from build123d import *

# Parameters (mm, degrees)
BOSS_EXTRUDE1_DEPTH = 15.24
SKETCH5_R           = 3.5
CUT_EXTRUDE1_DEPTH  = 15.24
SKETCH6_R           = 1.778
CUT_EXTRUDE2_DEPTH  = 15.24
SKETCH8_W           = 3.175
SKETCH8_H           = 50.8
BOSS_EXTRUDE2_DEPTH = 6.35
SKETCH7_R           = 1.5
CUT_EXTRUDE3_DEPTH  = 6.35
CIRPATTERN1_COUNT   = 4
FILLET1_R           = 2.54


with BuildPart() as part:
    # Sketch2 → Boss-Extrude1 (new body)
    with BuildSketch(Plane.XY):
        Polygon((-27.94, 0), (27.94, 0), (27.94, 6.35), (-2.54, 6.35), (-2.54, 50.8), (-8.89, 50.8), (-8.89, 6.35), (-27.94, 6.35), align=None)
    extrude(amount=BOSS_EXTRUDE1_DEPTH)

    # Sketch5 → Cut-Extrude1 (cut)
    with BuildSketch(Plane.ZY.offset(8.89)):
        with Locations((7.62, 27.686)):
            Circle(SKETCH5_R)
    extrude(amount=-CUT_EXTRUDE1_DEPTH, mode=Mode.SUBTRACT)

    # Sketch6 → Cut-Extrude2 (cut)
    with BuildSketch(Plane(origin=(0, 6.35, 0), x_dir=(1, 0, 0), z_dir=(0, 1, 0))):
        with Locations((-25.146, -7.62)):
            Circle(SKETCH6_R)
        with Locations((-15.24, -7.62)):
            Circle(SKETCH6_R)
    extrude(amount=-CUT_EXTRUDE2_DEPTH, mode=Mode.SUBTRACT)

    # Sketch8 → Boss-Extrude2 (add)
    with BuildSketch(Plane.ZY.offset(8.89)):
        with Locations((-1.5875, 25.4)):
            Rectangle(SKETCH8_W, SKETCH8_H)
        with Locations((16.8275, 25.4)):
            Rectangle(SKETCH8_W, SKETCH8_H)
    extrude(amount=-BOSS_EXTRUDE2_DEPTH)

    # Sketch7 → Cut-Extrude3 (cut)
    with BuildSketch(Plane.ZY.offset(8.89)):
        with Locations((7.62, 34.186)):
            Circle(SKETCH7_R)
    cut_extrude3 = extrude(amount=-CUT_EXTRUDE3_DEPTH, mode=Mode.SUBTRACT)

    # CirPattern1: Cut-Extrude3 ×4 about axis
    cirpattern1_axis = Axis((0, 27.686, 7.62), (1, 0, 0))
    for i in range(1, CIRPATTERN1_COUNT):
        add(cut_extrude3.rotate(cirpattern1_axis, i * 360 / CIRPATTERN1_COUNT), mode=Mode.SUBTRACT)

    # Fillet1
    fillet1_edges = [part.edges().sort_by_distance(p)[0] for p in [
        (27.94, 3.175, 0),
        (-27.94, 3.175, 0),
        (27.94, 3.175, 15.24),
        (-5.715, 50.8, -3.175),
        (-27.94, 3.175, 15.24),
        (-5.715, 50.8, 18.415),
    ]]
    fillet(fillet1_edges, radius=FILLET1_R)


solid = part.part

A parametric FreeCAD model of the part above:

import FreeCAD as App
import Part
import Sketcher
Q = App.Units.Quantity


def edges_at(feature, points):
    """Names of the edges that pass closest to the given points."""
    edges = feature.Shape.Edges
    near = lambda p: min(range(len(edges)), key=lambda i: edges[i].distToShape(Part.Vertex(*p))[0])
    return sorted({f"Edge{near(p) + 1}" for p in points})

doc = App.newDocument("Part")
params = doc.addObject("Spreadsheet::Sheet", "Params")
for row, (alias, value) in enumerate([
    ("sketch1_width", "2.2 in"),
    ("sketch1_width2", "1.2 in"),
    ("sketch1_width3", "0.25 in"),
    ("pad1_length", "0.6 in"),
    ("pocket1_length", "0.6 in"),
    ("sketch3_diameter", "0.14 in"),
    ("pocket2_length", "0.6 in"),
    ("sketch4_width", "2 in"),
    ("sketch4_height", "0.125 in"),
    ("pad2_length", "0.25 in"),
    ("pocket3_length", "0.25 in"),
    ("fillet_radius", "0.1 in"),
], start=1):
    params.set(f"A{row}", alias)
    params.set(f"B{row}", "=" + value)
    params.setAlias(f"B{row}", alias)

body = doc.addObject("PartDesign::Body", "Body")

# Sketch on XY plane
sketch1 = doc.addObject("Sketcher::SketchObject", "Sketch")
body.addObject(sketch1)
sketch1.AttachmentSupport = (doc.XY_Plane, [""])
sketch1.MapMode = "FlatFace"
sketch1.addGeometry([
    Part.LineSegment(App.Vector(-28, 0, 0), App.Vector(28, 0, 0)),  # 0
    Part.LineSegment(App.Vector(28, 0, 0), App.Vector(28, 6, 0)),  # 1
    Part.LineSegment(App.Vector(28, 6, 0), App.Vector(-3, 6, 0)),  # 2
    Part.LineSegment(App.Vector(-3, 6, 0), App.Vector(-3, 51, 0)),  # 3
    Part.LineSegment(App.Vector(-3, 51, 0), App.Vector(-9, 51, 0)),  # 4
    Part.LineSegment(App.Vector(-9, 51, 0), App.Vector(-9, 6, 0)),  # 5
    Part.LineSegment(App.Vector(-9, 6, 0), App.Vector(-28, 6, 0)),  # 6
    Part.LineSegment(App.Vector(-28, 6, 0), App.Vector(-28, 0, 0)),  # 7
], False)
sketch1.addConstraint([
    Sketcher.Constraint("Coincident", 0, 2, 1, 1),
    Sketcher.Constraint("Coincident", 1, 2, 2, 1),
    Sketcher.Constraint("Coincident", 2, 2, 3, 1),
    Sketcher.Constraint("Coincident", 3, 2, 4, 1),
    Sketcher.Constraint("Coincident", 4, 2, 5, 1),
    Sketcher.Constraint("Coincident", 5, 2, 6, 1),
    Sketcher.Constraint("Coincident", 6, 2, 7, 1),
    Sketcher.Constraint("Coincident", 7, 2, 0, 1),
    Sketcher.Constraint("Horizontal", 0),
    Sketcher.Constraint("Vertical", 1),
    Sketcher.Constraint("Horizontal", 2),
    Sketcher.Constraint("Vertical", 3),
    Sketcher.Constraint("Horizontal", 4),
    Sketcher.Constraint("Vertical", 5),
    Sketcher.Constraint("Horizontal", 6),
    Sketcher.Constraint("Vertical", 7),
    Sketcher.Constraint("Symmetric", 0, 2, 7, 2, -1, 1),
    Sketcher.Constraint("Horizontal", 2, 2, 5, 2),
    Sketcher.Constraint("Equal", 4, 1),
    Sketcher.Constraint("DistanceX", 0, 1, 0, 2, Q("2.2 in")),
    Sketcher.Constraint("DistanceX", 2, 2, 2, 1, Q("1.2 in")),
    Sketcher.Constraint("DistanceY", -1, 1, 3, 2, Q("2 in")),
    Sketcher.Constraint("DistanceX", 4, 2, 4, 1, Q("0.25 in")),
])
sketch1.setExpression("Constraints[19]", "Params.sketch1_width")
sketch1.setExpression("Constraints[20]", "Params.sketch1_width2")
sketch1.setExpression("Constraints[22]", "Params.sketch1_width3")
pad1 = doc.addObject("PartDesign::Pad", "Pad")
body.addObject(pad1)
pad1.Profile = sketch1
pad1.setExpression("Length", "Params.pad1_length")

# Sketch on YZ plane
sketch2 = doc.addObject("Sketcher::SketchObject", "Sketch001")
body.addObject(sketch2)
sketch2.AttachmentSupport = (doc.YZ_Plane, [""])
sketch2.MapMode = "FlatFace"
sketch2.AttachmentOffset = App.Placement(App.Vector(0, 0, -0.35 * 25.4), App.Rotation())
sketch2.addGeometry(Part.Circle(App.Vector(27.7, 7.6, 0), App.Vector(0, 0, 1), 3.5), False)
sketch2.addConstraint([
    Sketcher.Constraint("DistanceY", -1, 1, 0, 3, Q("0.3 in")),
    Sketcher.Constraint("Diameter", 0, Q("7 mm")),
    Sketcher.Constraint("DistanceX", -1, 1, 0, 3, Q("1.09 in")),
])
pocket1 = doc.addObject("PartDesign::Pocket", "Pocket")
body.addObject(pocket1)
pocket1.Profile = sketch2
pocket1.setExpression("Length", "Params.pocket1_length")
pocket1.Reversed = True

# Sketch on XZ plane
sketch3 = doc.addObject("Sketcher::SketchObject", "Sketch002")
body.addObject(sketch3)
sketch3.AttachmentSupport = (doc.XZ_Plane, [""])
sketch3.MapMode = "FlatFace"
sketch3.AttachmentOffset = App.Placement(App.Vector(0, 0, -0.25 * 25.4), App.Rotation())
sketch3.addGeometry([
    Part.Circle(App.Vector(-25.1, 7.6, 0), App.Vector(0, 0, 1), 1.8),
    Part.Circle(App.Vector(-15.2, 7.6, 0), App.Vector(0, 0, 1), 1.8),
], False)
sketch3.addConstraint([
    Sketcher.Constraint("Equal", 0, 1),
    Sketcher.Constraint("Horizontal", 0, 3, 1, 3),
    Sketcher.Constraint("Diameter", 0, Q("0.14 in")),
    Sketcher.Constraint("DistanceY", -1, 1, 0, 3, Q("0.3 in")),
    Sketcher.Constraint("DistanceX", 1, 3, -1, 1, Q("0.6 in")),
    Sketcher.Constraint("DistanceX", 0, 3, -1, 1, Q("0.99 in")),
])
sketch3.setExpression("Constraints[2]", "Params.sketch3_diameter")
pocket2 = doc.addObject("PartDesign::Pocket", "Pocket001")
body.addObject(pocket2)
pocket2.Profile = sketch3
pocket2.setExpression("Length", "Params.pocket2_length")
pocket2.Reversed = True

# Sketch on YZ plane
sketch4 = doc.addObject("Sketcher::SketchObject", "Sketch003")
body.addObject(sketch4)
sketch4.AttachmentSupport = (doc.YZ_Plane, [""])
sketch4.MapMode = "FlatFace"
sketch4.AttachmentOffset = App.Placement(App.Vector(0, 0, -0.35 * 25.4), App.Rotation())
sketch4.addGeometry([
    Part.LineSegment(App.Vector(50.8, -3.2, 0), App.Vector(0, -3.2, 0)),  # 0
    Part.LineSegment(App.Vector(0, -3.2, 0), App.Vector(0, 0, 0)),  # 1
    Part.LineSegment(App.Vector(0, 0, 0), App.Vector(50.8, 0, 0)),  # 2
    Part.LineSegment(App.Vector(50.8, 0, 0), App.Vector(50.8, -3.2, 0)),  # 3
    Part.LineSegment(App.Vector(50.8, 15.2, 0), App.Vector(0, 15.2, 0)),  # 4
    Part.LineSegment(App.Vector(0, 15.2, 0), App.Vector(0, 18.4, 0)),  # 5
    Part.LineSegment(App.Vector(0, 18.4, 0), App.Vector(50.8, 18.4, 0)),  # 6
    Part.LineSegment(App.Vector(50.8, 18.4, 0), App.Vector(50.8, 15.2, 0)),  # 7
], False)
sketch4.addConstraint([
    Sketcher.Constraint("Coincident", 0, 2, 1, 1),
    Sketcher.Constraint("Coincident", 1, 2, 2, 1),
    Sketcher.Constraint("Coincident", 2, 2, 3, 1),
    Sketcher.Constraint("Coincident", 3, 2, 0, 1),
    Sketcher.Constraint("Coincident", 4, 2, 5, 1),
    Sketcher.Constraint("Coincident", 5, 2, 6, 1),
    Sketcher.Constraint("Coincident", 6, 2, 7, 1),
    Sketcher.Constraint("Coincident", 7, 2, 4, 1),
    Sketcher.Constraint("Horizontal", 0),
    Sketcher.Constraint("Vertical", 1),
    Sketcher.Constraint("Horizontal", 2),
    Sketcher.Constraint("Vertical", 3),
    Sketcher.Constraint("Horizontal", 4),
    Sketcher.Constraint("Vertical", 5),
    Sketcher.Constraint("Horizontal", 6),
    Sketcher.Constraint("Vertical", 7),
    Sketcher.Constraint("Coincident", 1, 2, -1, 1),
    Sketcher.Constraint("PointOnObject", 4, 2, -2),
    Sketcher.Constraint("Vertical", 3, 2, 6, 2),
    Sketcher.Constraint("Equal", 3, 5),
    Sketcher.Constraint("DistanceX", 0, 2, 0, 1, Q("2 in")),
    Sketcher.Constraint("DistanceY", -1, 1, 4, 2, Q("0.6 in")),
    Sketcher.Constraint("DistanceY", 1, 1, 1, 2, Q("0.125 in")),
])
sketch4.setExpression("Constraints[20]", "Params.sketch4_width")
sketch4.setExpression("Constraints[22]", "Params.sketch4_height")
pad2 = doc.addObject("PartDesign::Pad", "Pad001")
body.addObject(pad2)
pad2.Profile = sketch4
pad2.setExpression("Length", "Params.pad2_length")

# Sketch on YZ plane
sketch5 = doc.addObject("Sketcher::SketchObject", "Sketch004")
body.addObject(sketch5)
sketch5.AttachmentSupport = (doc.YZ_Plane, [""])
sketch5.MapMode = "FlatFace"
sketch5.AttachmentOffset = App.Placement(App.Vector(0, 0, -0.35 * 25.4), App.Rotation())
sketch5.addGeometry(Part.Circle(App.Vector(34.2, 7.6, 0), App.Vector(0, 0, 1), 1.5), False)
sketch5.addConstraint([
    Sketcher.Constraint("DistanceY", -1, 1, 0, 3, Q("0.3 in")),
    Sketcher.Constraint("Diameter", 0, Q("3 mm")),
    Sketcher.Constraint("DistanceX", -1, 1, 0, 3, Q("34.186 mm")),
])
pocket3 = doc.addObject("PartDesign::Pocket", "Pocket002")
body.addObject(pocket3)
pocket3.Profile = sketch5
pocket3.setExpression("Length", "Params.pocket3_length")
pocket3.Reversed = True
doc.recompute()

datumline = doc.addObject("PartDesign::Line", "DatumLine")
body.addObject(datumline)
datumline.Placement = App.Placement(App.Vector(0, 27.686, 7.62), App.Rotation(App.Vector(0, 0, 1), App.Vector(1, 0, 0)))
polarpattern = doc.addObject("PartDesign::PolarPattern", "PolarPattern")
body.addObject(polarpattern)
polarpattern.Originals = [pocket3]
polarpattern.Axis = (datumline, [""])
polarpattern.Angle = 360
polarpattern.Occurrences = 4
body.Tip = polarpattern
doc.recompute()

fillet = doc.addObject("PartDesign::Fillet", "Fillet")
body.addObject(fillet)
fillet.Base = (polarpattern, edges_at(polarpattern, [
    (27.94, 3.175, 0),
    (-27.94, 3.175, 0),
    (27.94, 3.175, 15.24),
    (-5.715, 50.8, -3.175),
    (-27.94, 3.175, 15.24),
    (-5.715, 50.8, 18.415),
]))
fillet.setExpression("Radius", "Params.fillet_radius")

doc.recompute()
